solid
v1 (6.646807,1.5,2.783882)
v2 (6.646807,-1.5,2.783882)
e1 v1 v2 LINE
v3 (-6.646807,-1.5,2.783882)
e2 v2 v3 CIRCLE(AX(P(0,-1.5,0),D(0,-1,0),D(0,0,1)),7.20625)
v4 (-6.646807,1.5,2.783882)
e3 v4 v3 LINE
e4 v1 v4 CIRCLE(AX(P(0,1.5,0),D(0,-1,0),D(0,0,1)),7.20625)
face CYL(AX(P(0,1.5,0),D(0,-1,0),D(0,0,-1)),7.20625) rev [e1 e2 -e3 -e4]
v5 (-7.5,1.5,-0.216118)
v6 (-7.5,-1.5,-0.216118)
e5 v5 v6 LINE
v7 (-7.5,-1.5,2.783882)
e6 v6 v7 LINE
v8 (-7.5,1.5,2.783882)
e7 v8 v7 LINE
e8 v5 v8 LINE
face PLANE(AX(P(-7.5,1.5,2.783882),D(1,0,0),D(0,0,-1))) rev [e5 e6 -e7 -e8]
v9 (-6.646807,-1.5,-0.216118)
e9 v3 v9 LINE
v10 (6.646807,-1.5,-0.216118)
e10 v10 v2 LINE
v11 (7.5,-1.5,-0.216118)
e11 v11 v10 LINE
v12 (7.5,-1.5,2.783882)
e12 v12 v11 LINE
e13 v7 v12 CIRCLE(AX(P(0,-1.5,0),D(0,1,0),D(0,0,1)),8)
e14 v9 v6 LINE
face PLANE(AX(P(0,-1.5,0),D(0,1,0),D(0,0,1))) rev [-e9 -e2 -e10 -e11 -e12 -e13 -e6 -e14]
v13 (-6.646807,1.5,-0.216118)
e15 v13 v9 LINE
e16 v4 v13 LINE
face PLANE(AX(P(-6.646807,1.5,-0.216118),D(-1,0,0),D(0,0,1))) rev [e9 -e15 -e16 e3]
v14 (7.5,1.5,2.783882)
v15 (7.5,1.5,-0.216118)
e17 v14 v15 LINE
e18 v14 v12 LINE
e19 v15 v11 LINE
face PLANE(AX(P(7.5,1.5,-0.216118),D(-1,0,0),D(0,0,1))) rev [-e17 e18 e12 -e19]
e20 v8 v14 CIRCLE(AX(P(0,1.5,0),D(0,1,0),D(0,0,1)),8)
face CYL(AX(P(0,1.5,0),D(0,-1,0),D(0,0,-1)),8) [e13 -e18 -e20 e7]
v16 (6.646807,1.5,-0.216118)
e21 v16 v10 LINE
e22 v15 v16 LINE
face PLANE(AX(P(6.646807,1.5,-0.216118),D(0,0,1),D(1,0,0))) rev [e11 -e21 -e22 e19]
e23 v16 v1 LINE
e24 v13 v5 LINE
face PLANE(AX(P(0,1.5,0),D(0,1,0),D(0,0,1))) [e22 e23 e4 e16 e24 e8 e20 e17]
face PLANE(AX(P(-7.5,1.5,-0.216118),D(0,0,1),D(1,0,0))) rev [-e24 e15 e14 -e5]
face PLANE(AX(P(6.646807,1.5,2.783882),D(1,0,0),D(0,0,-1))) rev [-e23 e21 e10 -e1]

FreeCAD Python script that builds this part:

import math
import FreeCAD as App
import Part
import Sketcher
Q = App.Units.Quantity

doc = App.newDocument("Part")
body = doc.addObject("PartDesign::Body", "Body")

# Sketch on XZ plane
sketch1 = doc.addObject("Sketcher::SketchObject", "Sketch")
body.addObject(sketch1)
sketch1.AttachmentSupport = (doc.XZ_Plane, [""])
sketch1.MapMode = "FlatFace"
sketch1.addGeometry(Part.LineSegment(App.Vector(-7.5, -0.216118, 0), App.Vector(-7.5, 2.783882, 0)), False)
sketch1.addGeometry(Part.ArcOfCircle(Part.Circle(App.Vector(0, 0, 0), App.Vector(0, 0, 1), 8), math.radians(20.364135), math.radians(159.635865)), False)
sketch1.addGeometry(Part.LineSegment(App.Vector(7.5, 2.783882, 0), App.Vector(7.5, -0.216118, 0)), False)
sketch1.addGeometry(Part.LineSegment(App.Vector(7.5, -0.216118, 0), App.Vector(6.646807, -0.216118, 0)), False)
sketch1.addGeometry(Part.LineSegment(App.Vector(6.646807, -0.216118, 0), App.Vector(6.646807, 2.783882, 0)), False)
sketch1.addGeometry(Part.ArcOfCircle(Part.Circle(App.Vector(0, 0, 0), App.Vector(0, 0, 1), 7.20625), math.radians(22.725399), math.radians(157.274601)), False)
sketch1.addGeometry(Part.LineSegment(App.Vector(-6.646807, 2.783882, 0), App.Vector(-6.646807, -0.216118, 0)), False)
sketch1.addGeometry(Part.LineSegment(App.Vector(-6.646807, -0.216118, 0), App.Vector(-7.5, -0.216118, 0)), False)
sketch1.addConstraint(Sketcher.Constraint("Coincident", 0, 2, 1, 2))
sketch1.addConstraint(Sketcher.Constraint("Coincident", 1, 1, 2, 1))
sketch1.addConstraint(Sketcher.Constraint("Coincident", 2, 2, 3, 1))
sketch1.addConstraint(Sketcher.Constraint("Coincident", 3, 2, 4, 1))
sketch1.addConstraint(Sketcher.Constraint("Coincident", 4, 2, 5, 1))
sketch1.addConstraint(Sketcher.Constraint("Coincident", 5, 2, 6, 1))
sketch1.addConstraint(Sketcher.Constraint("Coincident", 6, 2, 7, 1))
sketch1.addConstraint(Sketcher.Constraint("Coincident", 7, 2, 0, 1))
sketch1.addConstraint(Sketcher.Constraint("Vertical", 0))
sketch1.addConstraint(Sketcher.Constraint("Vertical", 2))
sketch1.addConstraint(Sketcher.Constraint("Horizontal", 3))
sketch1.addConstraint(Sketcher.Constraint("Vertical", 4))
sketch1.addConstraint(Sketcher.Constraint("Vertical", 6))
sketch1.addConstraint(Sketcher.Constraint("Horizontal", 7))
sketch1.addConstraint(Sketcher.Constraint("Coincident", 1, 3, -1, 1))
sketch1.addConstraint(Sketcher.Constraint("Coincident", 5, 3, -1, 1))
sketch1.addConstraint(Sketcher.Constraint("Symmetric", 3, 2, 6, 2, -2))
sketch1.addConstraint(Sketcher.Constraint("Horizontal", 0, 2, 1, 1))
sketch1.addConstraint(Sketcher.Constraint("Horizontal", 1, 1, 4, 2))
sketch1.addConstraint(Sketcher.Constraint("Radius", 1, Q("8 mm")))
sketch1.addConstraint(Sketcher.Constraint("DistanceY", 0, 1, 0, 2, Q("3 mm")))
sketch1.addConstraint(Sketcher.Constraint("DistanceX", 0, 2, 1, 1, Q("15 mm")))
sketch1.addConstraint(Sketcher.Constraint("Radius", 5, Q("7.20625 mm")))
pad1 = doc.addObject("PartDesign::Pad", "Pad")
body.addObject(pad1)
pad1.Profile = sketch1
pad1.Length = 3
pad1.Midplane = True

doc.recompute()
